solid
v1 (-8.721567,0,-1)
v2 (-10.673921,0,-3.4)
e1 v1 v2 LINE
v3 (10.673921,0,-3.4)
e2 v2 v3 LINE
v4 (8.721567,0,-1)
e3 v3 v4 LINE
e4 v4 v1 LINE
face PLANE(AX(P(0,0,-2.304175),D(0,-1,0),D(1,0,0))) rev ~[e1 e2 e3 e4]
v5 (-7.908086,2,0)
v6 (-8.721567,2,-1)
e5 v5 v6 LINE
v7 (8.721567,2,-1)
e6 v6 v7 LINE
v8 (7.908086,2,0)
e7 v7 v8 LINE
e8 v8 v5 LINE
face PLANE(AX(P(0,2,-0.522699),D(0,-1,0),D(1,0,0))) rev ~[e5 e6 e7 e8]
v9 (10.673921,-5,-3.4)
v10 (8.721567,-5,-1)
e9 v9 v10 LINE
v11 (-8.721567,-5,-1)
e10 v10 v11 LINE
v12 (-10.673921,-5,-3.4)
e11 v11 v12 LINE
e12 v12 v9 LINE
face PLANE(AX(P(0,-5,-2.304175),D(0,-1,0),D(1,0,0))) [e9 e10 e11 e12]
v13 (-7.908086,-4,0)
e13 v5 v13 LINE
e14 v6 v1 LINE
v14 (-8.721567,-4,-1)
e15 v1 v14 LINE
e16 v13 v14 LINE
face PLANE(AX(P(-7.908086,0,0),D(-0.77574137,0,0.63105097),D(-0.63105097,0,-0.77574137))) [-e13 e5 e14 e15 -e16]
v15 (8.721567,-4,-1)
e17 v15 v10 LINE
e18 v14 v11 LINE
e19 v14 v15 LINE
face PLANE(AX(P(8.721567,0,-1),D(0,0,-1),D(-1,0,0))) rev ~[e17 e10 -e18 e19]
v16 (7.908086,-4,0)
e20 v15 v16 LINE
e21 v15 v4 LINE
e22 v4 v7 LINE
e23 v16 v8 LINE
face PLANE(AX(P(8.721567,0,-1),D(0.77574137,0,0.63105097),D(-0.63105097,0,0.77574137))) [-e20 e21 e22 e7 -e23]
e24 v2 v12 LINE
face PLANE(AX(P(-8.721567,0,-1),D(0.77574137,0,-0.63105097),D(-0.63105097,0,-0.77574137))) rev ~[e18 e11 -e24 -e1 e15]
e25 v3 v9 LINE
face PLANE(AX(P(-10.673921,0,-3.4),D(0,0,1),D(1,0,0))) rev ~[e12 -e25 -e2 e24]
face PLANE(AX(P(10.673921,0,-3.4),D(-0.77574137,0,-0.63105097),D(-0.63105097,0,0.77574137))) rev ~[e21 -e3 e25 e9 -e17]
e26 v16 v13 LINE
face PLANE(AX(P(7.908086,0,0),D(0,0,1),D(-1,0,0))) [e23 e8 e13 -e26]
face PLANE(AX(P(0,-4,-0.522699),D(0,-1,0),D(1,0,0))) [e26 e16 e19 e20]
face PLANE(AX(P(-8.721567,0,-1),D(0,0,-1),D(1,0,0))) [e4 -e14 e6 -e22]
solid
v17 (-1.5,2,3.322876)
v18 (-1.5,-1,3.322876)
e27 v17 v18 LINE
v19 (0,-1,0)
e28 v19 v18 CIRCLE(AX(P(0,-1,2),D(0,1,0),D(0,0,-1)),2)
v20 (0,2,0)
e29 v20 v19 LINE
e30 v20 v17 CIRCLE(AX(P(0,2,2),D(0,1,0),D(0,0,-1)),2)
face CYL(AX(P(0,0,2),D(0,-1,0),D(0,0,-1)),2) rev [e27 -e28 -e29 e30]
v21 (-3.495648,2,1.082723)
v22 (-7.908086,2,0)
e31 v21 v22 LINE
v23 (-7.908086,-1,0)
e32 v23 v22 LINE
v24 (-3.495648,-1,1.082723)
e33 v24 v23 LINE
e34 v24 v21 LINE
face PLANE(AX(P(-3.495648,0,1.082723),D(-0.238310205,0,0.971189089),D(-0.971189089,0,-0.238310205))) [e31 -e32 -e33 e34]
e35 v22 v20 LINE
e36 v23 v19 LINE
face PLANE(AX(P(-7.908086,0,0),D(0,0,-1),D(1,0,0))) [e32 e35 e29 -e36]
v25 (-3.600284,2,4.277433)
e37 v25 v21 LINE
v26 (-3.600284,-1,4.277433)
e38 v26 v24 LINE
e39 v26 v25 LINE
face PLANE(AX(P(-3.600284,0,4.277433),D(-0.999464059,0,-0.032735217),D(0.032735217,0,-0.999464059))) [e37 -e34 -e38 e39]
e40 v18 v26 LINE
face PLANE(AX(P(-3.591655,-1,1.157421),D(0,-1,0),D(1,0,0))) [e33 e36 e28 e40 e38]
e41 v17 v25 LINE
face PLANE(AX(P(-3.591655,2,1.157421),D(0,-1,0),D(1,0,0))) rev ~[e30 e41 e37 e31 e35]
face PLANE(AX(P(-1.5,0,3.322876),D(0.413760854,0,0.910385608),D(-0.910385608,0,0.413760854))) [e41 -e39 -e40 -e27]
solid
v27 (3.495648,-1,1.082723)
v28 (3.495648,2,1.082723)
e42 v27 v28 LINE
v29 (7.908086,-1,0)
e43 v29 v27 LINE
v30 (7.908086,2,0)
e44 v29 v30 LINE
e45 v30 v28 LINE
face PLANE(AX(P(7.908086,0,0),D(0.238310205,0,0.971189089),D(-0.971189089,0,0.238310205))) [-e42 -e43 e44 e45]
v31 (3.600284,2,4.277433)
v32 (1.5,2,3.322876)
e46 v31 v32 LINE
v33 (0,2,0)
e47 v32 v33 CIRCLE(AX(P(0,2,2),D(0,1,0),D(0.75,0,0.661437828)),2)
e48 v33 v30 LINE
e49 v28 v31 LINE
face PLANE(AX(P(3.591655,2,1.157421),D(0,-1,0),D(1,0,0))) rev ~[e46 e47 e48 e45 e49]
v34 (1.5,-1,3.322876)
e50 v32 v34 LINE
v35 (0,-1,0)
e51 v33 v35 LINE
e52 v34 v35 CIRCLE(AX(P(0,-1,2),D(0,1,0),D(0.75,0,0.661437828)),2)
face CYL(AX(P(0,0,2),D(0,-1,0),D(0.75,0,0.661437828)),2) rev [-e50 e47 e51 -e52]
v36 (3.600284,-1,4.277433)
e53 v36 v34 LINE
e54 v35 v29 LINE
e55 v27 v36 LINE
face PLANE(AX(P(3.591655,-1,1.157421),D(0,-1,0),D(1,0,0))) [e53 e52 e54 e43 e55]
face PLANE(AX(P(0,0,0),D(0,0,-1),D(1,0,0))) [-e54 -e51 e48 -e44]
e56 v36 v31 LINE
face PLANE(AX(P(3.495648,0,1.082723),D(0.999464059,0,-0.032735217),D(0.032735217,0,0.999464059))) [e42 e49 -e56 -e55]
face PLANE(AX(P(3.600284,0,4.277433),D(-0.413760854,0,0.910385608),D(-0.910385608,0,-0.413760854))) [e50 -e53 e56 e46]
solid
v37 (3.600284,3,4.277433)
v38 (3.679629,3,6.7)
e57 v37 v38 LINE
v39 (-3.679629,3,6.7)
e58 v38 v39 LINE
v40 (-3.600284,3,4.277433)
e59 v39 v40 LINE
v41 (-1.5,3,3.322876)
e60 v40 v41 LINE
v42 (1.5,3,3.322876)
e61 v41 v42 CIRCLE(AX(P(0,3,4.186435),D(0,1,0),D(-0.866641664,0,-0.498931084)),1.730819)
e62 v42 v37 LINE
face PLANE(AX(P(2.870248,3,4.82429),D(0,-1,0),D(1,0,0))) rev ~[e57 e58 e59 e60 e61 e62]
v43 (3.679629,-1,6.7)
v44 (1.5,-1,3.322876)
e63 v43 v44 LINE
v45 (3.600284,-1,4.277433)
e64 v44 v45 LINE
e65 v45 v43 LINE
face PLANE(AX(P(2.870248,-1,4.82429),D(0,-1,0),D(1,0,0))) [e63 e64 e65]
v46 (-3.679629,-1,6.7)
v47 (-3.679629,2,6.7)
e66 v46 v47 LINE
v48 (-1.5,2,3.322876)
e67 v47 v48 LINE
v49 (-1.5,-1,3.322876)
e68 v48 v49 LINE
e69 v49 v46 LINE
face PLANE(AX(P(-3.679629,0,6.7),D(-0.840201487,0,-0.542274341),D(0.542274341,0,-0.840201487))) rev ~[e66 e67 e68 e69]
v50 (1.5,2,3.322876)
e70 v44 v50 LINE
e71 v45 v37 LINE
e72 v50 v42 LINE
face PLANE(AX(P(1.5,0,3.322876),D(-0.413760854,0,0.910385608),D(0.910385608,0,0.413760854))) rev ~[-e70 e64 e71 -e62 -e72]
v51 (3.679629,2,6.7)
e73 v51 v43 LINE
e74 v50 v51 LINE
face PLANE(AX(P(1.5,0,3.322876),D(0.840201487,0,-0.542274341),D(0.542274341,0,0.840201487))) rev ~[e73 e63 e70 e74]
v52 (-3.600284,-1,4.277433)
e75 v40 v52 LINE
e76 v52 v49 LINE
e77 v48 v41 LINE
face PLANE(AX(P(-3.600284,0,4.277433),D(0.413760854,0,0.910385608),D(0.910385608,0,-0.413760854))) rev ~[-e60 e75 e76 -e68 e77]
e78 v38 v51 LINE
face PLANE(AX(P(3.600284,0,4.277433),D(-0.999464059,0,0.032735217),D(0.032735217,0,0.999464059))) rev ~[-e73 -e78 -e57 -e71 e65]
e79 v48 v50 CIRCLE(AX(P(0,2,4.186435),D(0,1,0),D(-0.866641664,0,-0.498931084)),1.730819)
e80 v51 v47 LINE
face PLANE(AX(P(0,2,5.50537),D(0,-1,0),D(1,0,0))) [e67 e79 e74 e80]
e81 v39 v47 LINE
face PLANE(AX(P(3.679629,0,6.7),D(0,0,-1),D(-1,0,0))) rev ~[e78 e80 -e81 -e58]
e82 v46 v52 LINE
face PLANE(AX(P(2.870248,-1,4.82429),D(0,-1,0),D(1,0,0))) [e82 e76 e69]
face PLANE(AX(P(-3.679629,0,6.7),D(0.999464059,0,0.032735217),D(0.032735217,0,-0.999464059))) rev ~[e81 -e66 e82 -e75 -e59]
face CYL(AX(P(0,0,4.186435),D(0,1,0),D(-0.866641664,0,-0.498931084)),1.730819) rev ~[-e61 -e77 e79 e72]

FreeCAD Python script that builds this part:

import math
import FreeCAD as App
import Part
import Sketcher
from FreeCAD import Vector


def add_polygon(sketch, points):
    """Adds a closed chain of lines whose ends are joined by coincident constraints."""
    first, n = sketch.GeometryCount, len(points)
    for a, b in zip(points, points[1:] + points[:1]):
        sketch.addGeometry(Part.LineSegment(App.Vector(*a, 0), App.Vector(*b, 0)), False)
    for i in range(n):
        sketch.addConstraint(Sketcher.Constraint("Coincident", first + i, 2, first + (i + 1) % n, 1))

doc = App.newDocument("Part")
body = doc.addObject("PartDesign::Body", "Body")

sketch1 = body.newObject("Sketcher::SketchObject", "Sketch")
sketch1.AttachmentSupport = (doc.getObject("XZ_Plane"), [""])
sketch1.MapMode = "FlatFace"
add_polygon(sketch1, [(7.9, 0), (-7.9, 0), (-8.7, -1), (8.7, -1)])
sketch1.addConstraint([
    Sketcher.Constraint("Horizontal", 0),
    Sketcher.Constraint("Horizontal", 2),
    Sketcher.Constraint("Symmetric", 0, 2, 3, 2, -1, 1),
    Sketcher.Constraint("Equal", 1, 3),
    Sketcher.Constraint("DistanceY", 1, 2, -1, 1, 1.0),
    Sketcher.Constraint("DistanceX", 0, 2, 0, 1, 15.816171),
    Sketcher.Constraint("Distance", 1, 1.289089),
])
pad1 = body.newObject("PartDesign::Pad", "Pad")
pad1.Profile = sketch1
pad1.Type = "TwoLengths"
pad1.Length = 4
pad1.Length2 = 2

sketch2 = body.newObject("Sketcher::SketchObject", "Sketch001")
sketch2.AttachmentSupport = (doc.getObject("XZ_Plane"), [""])
sketch2.MapMode = "FlatFace"
add_polygon(sketch2, [(8.7, -1), (-8.7, -1), (-10.7, -3.4), (10.7, -3.4)])
sketch2.addConstraint([
    Sketcher.Constraint("Horizontal", 0),
    Sketcher.Constraint("Horizontal", 2),
    Sketcher.Constraint("Equal", 1, 3),
    Sketcher.Constraint("DistanceY", 0, 2, -1, 1, 1.0),
    Sketcher.Constraint("DistanceY", 1, 2, -1, 1, 3.4),
    Sketcher.Constraint("DistanceX", 0, 2, 0, 1, 17.443134),
    Sketcher.Constraint("DistanceX", 2, 1, 2, 2, 21.347843),
    Sketcher.Constraint("DistanceX", 1, 2, -1, 1, 10.673921),
])
pad2 = body.newObject("PartDesign::Pad", "Pad001")
pad2.Profile = sketch2
pad2.Length = 5
body2 = doc.addObject("PartDesign::Body", "Body001")

sketch3 = body2.newObject("Sketcher::SketchObject", "Sketch002")
sketch3.AttachmentSupport = (doc.getObject("XZ_Plane001"), [""])
sketch3.MapMode = "FlatFace"
sketch3.addGeometry([
    Part.LineSegment(Vector(3.6, 4.3, 0), Vector(3.7, 6.7, 0)),
    Part.LineSegment(Vector(3.7, 6.7, 0), Vector(-3.7, 6.7, 0)),
    Part.LineSegment(Vector(-3.7, 6.7, 0), Vector(-3.6, 4.3, 0)),
    Part.LineSegment(Vector(-3.6, 4.3, 0), Vector(-1.5, 3.3, 0)),
    Part.ArcOfCircle(Part.Circle(Vector(0, 4.2, 0), Vector(0, 0, 1), 1.7), math.radians(-30), math.radians(210)),
    Part.LineSegment(Vector(1.5, 3.3, 0), Vector(3.6, 4.3, 0)),
], False)
sketch3.addConstraint([
    Sketcher.Constraint("Coincident", 0, 2, 1, 1),
    Sketcher.Constraint("Coincident", 1, 2, 2, 1),
    Sketcher.Constraint("Coincident", 2, 2, 3, 1),
    Sketcher.Constraint("Coincident", 3, 2, 4, 2),
    Sketcher.Constraint("Coincident", 4, 1, 5, 1),
    Sketcher.Constraint("Coincident", 5, 2, 0, 1),
    Sketcher.Constraint("Horizontal", 1),
    Sketcher.Constraint("Symmetric", 3, 2, 4, 1, -2),
    Sketcher.Constraint("Symmetric", 2, 2, 5, 2, -2),
    Sketcher.Constraint("Equal", 0, 2),
    Sketcher.Constraint("DistanceX", 3, 2, 4, 1, 3.0),
    Sketcher.Constraint("DistanceY", -1, 1, 0, 2, 6.7),
    Sketcher.Constraint("Radius", 4, 1.730819),
    Sketcher.Constraint("DistanceX", 1, 2, 1, 1, 7.359259),
    Sketcher.Constraint("Distance", 0, 2.423866),
    Sketcher.Constraint("Distance", 3, 2.307026),
    Sketcher.Constraint("DistanceY", -1, 1, 4, 3, 4.186435),
])
pad3 = body2.newObject("PartDesign::Pad", "Pad002")
pad3.Profile = sketch3
pad3.Type = "TwoLengths"
pad3.Length = 3
pad3.Length2 = 1
pad3.Reversed = True

sketch4 = body2.newObject("Sketcher::SketchObject", "Sketch003")
sketch4.AttachmentSupport = (doc.getObject("XZ_Plane001"), [""])
sketch4.MapMode = "FlatFace"
sketch4.addGeometry([
    Part.LineSegment(Vector(1.5, 3.3, 0), Vector(3.7, 6.7, 0)),
    Part.LineSegment(Vector(3.7, 6.7, 0), Vector(-3.7, 6.7, 0)),
    Part.LineSegment(Vector(-3.7, 6.7, 0), Vector(-1.5, 3.3, 0)),
    Part.ArcOfCircle(Part.Circle(Vector(0, 4.2, 0), Vector(0, 0, 1), 1.7), math.radians(-30), math.radians(210)),
], False)
sketch4.addConstraint([
    Sketcher.Constraint("Coincident", 0, 2, 1, 1),
    Sketcher.Constraint("Coincident", 1, 2, 2, 1),
    Sketcher.Constraint("Coincident", 2, 2, 3, 2),
    Sketcher.Constraint("Coincident", 3, 1, 0, 1),
    Sketcher.Constraint("Horizontal", 1),
    Sketcher.Constraint("Symmetric", 2, 2, 3, 1, -2),
    Sketcher.Constraint("Equal", 0, 2),
    Sketcher.Constraint("DistanceX", 2, 2, 3, 1, 3.0),
    Sketcher.Constraint("DistanceY", -1, 1, 0, 2, 6.7),
    Sketcher.Constraint("Radius", 3, 1.730819),
    Sketcher.Constraint("DistanceX", 1, 2, 1, 1, 7.359259),
    Sketcher.Constraint("Distance", 0, 4.019422),
])
pocket1 = body2.newObject("PartDesign::Pocket", "Pocket")
pocket1.Profile = sketch4
pocket1.Type = "TwoLengths"
pocket1.Length = 2
pocket1.Length2 = 2
body3 = doc.addObject("PartDesign::Body", "Body002")

sketch5 = body3.newObject("Sketcher::SketchObject", "Sketch004")
sketch5.AttachmentSupport = (doc.getObject("XZ_Plane002"), [""])
sketch5.MapMode = "FlatFace"
sketch5.addGeometry([
    Part.LineSegment(Vector(-7.9, 0, 0), Vector(0, 0, 0)),
    Part.ArcOfCircle(Part.Circle(Vector(0, 2, 0), Vector(0, 0, 1), 2), math.radians(139), math.radians(270)),
    Part.LineSegment(Vector(-1.5, 3.3, 0), Vector(-3.6, 4.3, 0)),
    Part.LineSegment(Vector(-3.6, 4.3, 0), Vector(-3.5, 1.1, 0)),
    Part.LineSegment(Vector(-3.5, 1.1, 0), Vector(-7.9, 0, 0)),
], False)
sketch5.addConstraint([
    Sketcher.Constraint("Tangent", 0, 2, 1, 2),
    Sketcher.Constraint("Coincident", 1, 1, 2, 1),
    Sketcher.Constraint("Coincident", 2, 2, 3, 1),
    Sketcher.Constraint("Coincident", 3, 2, 4, 1),
    Sketcher.Constraint("Coincident", 4, 2, 0, 1),
    Sketcher.Constraint("Horizontal", 0),
    Sketcher.Constraint("Coincident", 0, 2, -1, 1),
    Sketcher.Constraint("Radius", 1, 2.0),
    Sketcher.Constraint("DistanceX", 1, 1, -1, 1, 1.5),
    Sketcher.Constraint("DistanceX", 4, 2, 2, 2, 4.307802),
    Sketcher.Constraint("DistanceX", 0, 1, 0, 2, 7.908086),
    Sketcher.Constraint("DistanceX", 3, 2, -1, 1, 3.495648),
    Sketcher.Constraint("DistanceY", 3, 2, 2, 2, 3.19471),
    Sketcher.Constraint("Distance", 2, 2.307026),
])
pad4 = body3.newObject("PartDesign::Pad", "Pad003")
pad4.Profile = sketch5
pad4.Type = "TwoLengths"
pad4.Length = 1
pad4.Length2 = 2
body4 = doc.addObject("PartDesign::Body", "Body003")

sketch6 = body4.newObject("Sketcher::SketchObject", "Sketch005")
sketch6.AttachmentSupport = (doc.getObject("XZ_Plane003"), [""])
sketch6.MapMode = "FlatFace"
sketch6.addGeometry([
    Part.LineSegment(Vector(3.6, 4.3, 0), Vector(1.5, 3.3, 0)),
    Part.ArcOfCircle(Part.Circle(Vector(0, 2, 0), Vector(0, 0, 1), 2), math.radians(-90), math.radians(41)),
    Part.LineSegment(Vector(0, 0, 0), Vector(7.9, 0, 0)),
    Part.LineSegment(Vector(7.9, 0, 0), Vector(3.5, 1.1, 0)),
    Part.LineSegment(Vector(3.5, 1.1, 0), Vector(3.6, 4.3, 0)),
], False)
sketch6.addConstraint([
    Sketcher.Constraint("Coincident", 0, 2, 1, 2),
    Sketcher.Constraint("Tangent", 1, 1, 2, 1),
    Sketcher.Constraint("Coincident", 2, 2, 3, 1),
    Sketcher.Constraint("Coincident", 3, 2, 4, 1),
    Sketcher.Constraint("Coincident", 4, 2, 0, 1),
    Sketcher.Constraint("Horizontal", 2),
    Sketcher.Constraint("Coincident", 1, 1, -1, 1),
    Sketcher.Constraint("Radius", 1, 2.0),
    Sketcher.Constraint("DistanceX", -1, 1, 0, 2, 1.5),
    Sketcher.Constraint("DistanceX", 4, 2, 2, 2, 4.307802),
    Sketcher.Constraint("DistanceX", 2, 1, 2, 2, 7.908086),
    Sketcher.Constraint("DistanceX", -1, 1, 3, 2, 3.495648),
    Sketcher.Constraint("DistanceY", 3, 2, 4, 2, 3.19471),
    Sketcher.Constraint("Distance", 0, 2.307026),
])
pad5 = body4.newObject("PartDesign::Pad", "Pad004")
pad5.Profile = sketch6
pad5.Type = "TwoLengths"
pad5.Length = 1
pad5.Length2 = 2

doc.recompute()
